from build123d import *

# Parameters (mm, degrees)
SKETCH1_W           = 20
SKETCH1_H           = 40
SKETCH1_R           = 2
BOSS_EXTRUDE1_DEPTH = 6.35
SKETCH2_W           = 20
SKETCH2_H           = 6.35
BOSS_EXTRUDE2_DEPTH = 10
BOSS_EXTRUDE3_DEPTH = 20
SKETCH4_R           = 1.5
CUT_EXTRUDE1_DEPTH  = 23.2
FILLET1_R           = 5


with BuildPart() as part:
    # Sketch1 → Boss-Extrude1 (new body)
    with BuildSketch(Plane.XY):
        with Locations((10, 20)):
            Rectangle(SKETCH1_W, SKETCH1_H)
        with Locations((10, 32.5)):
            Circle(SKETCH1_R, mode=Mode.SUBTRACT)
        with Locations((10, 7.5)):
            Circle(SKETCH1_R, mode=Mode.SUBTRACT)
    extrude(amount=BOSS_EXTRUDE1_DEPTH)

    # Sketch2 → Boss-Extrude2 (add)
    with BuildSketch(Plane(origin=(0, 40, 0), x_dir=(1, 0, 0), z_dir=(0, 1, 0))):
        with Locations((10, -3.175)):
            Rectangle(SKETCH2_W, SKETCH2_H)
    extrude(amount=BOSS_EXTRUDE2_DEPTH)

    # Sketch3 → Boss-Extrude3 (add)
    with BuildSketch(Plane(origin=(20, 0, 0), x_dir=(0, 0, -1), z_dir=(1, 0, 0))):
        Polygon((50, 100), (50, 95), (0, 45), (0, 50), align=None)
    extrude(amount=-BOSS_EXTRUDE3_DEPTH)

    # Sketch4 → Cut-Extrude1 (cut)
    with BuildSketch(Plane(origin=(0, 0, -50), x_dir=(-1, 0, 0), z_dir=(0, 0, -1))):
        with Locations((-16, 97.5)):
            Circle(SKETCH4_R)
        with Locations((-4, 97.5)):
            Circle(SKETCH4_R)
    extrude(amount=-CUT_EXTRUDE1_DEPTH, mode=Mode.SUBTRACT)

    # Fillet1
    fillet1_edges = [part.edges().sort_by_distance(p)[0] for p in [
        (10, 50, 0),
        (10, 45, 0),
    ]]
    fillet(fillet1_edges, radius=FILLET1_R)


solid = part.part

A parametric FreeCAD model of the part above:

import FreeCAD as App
import Part
import Sketcher
Q = App.Units.Quantity


def edges_at(feature, points):
    """Names of the edges that pass closest to the given points."""
    edges = feature.Shape.Edges
    near = lambda p: min(range(len(edges)), key=lambda i: edges[i].distToShape(Part.Vertex(*p))[0])
    return sorted({f"Edge{near(p) + 1}" for p in points})

doc = App.newDocument("Part")
body = doc.addObject("PartDesign::Body", "Body")

# Sketch on XY plane
sketch1 = doc.addObject("Sketcher::SketchObject", "Sketch")
body.addObject(sketch1)
sketch1.AttachmentSupport = (doc.XY_Plane, [""])
sketch1.MapMode = "FlatFace"
sketch1.addGeometry([
    Part.LineSegment(App.Vector(0, 40, 0), App.Vector(0, 0, 0)),  # 0
    Part.LineSegment(App.Vector(0, 0, 0), App.Vector(20, 0, 0)),  # 1
    Part.LineSegment(App.Vector(20, 0, 0), App.Vector(20, 40, 0)),  # 2
    Part.LineSegment(App.Vector(20, 40, 0), App.Vector(0, 40, 0)),  # 3
    Part.Circle(App.Vector(10, 7.5, 0), App.Vector(0, 0, 1), 2),  # 4
    Part.Circle(App.Vector(10, 32.5, 0), App.Vector(0, 0, 1), 2),  # 5
], False)
sketch1.addConstraint([
    Sketcher.Constraint("Coincident", 0, 2, 1, 1),
    Sketcher.Constraint("Coincident", 1, 2, 2, 1),
    Sketcher.Constraint("Coincident", 2, 2, 3, 1),
    Sketcher.Constraint("Coincident", 3, 2, 0, 1),
    Sketcher.Constraint("Vertical", 0),
    Sketcher.Constraint("Horizontal", 1),
    Sketcher.Constraint("Vertical", 2),
    Sketcher.Constraint("Horizontal", 3),
    Sketcher.Constraint("Coincident", 0, 2, -1, 1),
    Sketcher.Constraint("Equal", 4, 5),
    Sketcher.Constraint("Vertical", 4, 3, 5, 3),
    Sketcher.Constraint("Diameter", 4, 4.0),
    Sketcher.Constraint("DistanceX", 1, 1, 1, 2, 20.0),
    Sketcher.Constraint("DistanceY", 0, 2, 0, 1, 40.0),
    Sketcher.Constraint("DistanceX", -1, 1, 4, 3, 10.0),
    Sketcher.Constraint("DistanceY", 4, 3, 5, 3, 25.0),
    Sketcher.Constraint("DistanceY", -1, 1, 4, 3, 7.5),
])
pad1 = doc.addObject("PartDesign::Pad", "Pad")
body.addObject(pad1)
pad1.Profile = sketch1
pad1.Length = 6.35

# Sketch on XZ plane
sketch2 = doc.addObject("Sketcher::SketchObject", "Sketch001")
body.addObject(sketch2)
sketch2.AttachmentSupport = (doc.XZ_Plane, [""])
sketch2.MapMode = "FlatFace"
sketch2.AttachmentOffset = App.Placement(App.Vector(0, 0, -40), App.Rotation())
sketch2.addGeometry([
    Part.LineSegment(App.Vector(0, 0, 0), App.Vector(0, 6, 0)),
    Part.LineSegment(App.Vector(0, 6, 0), App.Vector(20, 6, 0)),
    Part.LineSegment(App.Vector(20, 6, 0), App.Vector(20, 0, 0)),
    Part.LineSegment(App.Vector(20, 0, 0), App.Vector(0, 0, 0)),
], False)
sketch2.addConstraint([
    Sketcher.Constraint("Coincident", 0, 2, 1, 1),
    Sketcher.Constraint("Coincident", 1, 2, 2, 1),
    Sketcher.Constraint("Coincident", 2, 2, 3, 1),
    Sketcher.Constraint("Coincident", 3, 2, 0, 1),
    Sketcher.Constraint("Vertical", 0),
    Sketcher.Constraint("Horizontal", 1),
    Sketcher.Constraint("Vertical", 2),
    Sketcher.Constraint("Horizontal", 3),
    Sketcher.Constraint("Coincident", 3, 2, -1, 1),
    Sketcher.Constraint("DistanceX", 1, 1, 1, 2, 20.0),
    Sketcher.Constraint("DistanceY", 0, 1, 0, 2, 6.35),
])
pad2 = doc.addObject("PartDesign::Pad", "Pad001")
body.addObject(pad2)
pad2.Profile = sketch2
pad2.Length = 10
pad2.Reversed = True

# Sketch on YZ plane
sketch3 = doc.addObject("Sketcher::SketchObject", "Sketch002")
body.addObject(sketch3)
sketch3.AttachmentSupport = (doc.YZ_Plane, [""])
sketch3.MapMode = "FlatFace"
sketch3.AttachmentOffset = App.Placement(App.Vector(0, 0, 20), App.Rotation())
sketch3.addGeometry([
    Part.LineSegment(App.Vector(95, -50, 0), App.Vector(100, -50, 0)),
    Part.LineSegment(App.Vector(100, -50, 0), App.Vector(50, 0, 0)),
    Part.LineSegment(App.Vector(50, 0, 0), App.Vector(45, 0, 0)),
    Part.LineSegment(App.Vector(45, 0, 0), App.Vector(95, -50, 0)),
], False)
sketch3.addConstraint([
    Sketcher.Constraint("Coincident", 0, 2, 1, 1),
    Sketcher.Constraint("Coincident", 1, 2, 2, 1),
    Sketcher.Constraint("Coincident", 2, 2, 3, 1),
    Sketcher.Constraint("Coincident", 3, 2, 0, 1),
    Sketcher.Constraint("Horizontal", 0),
    Sketcher.Constraint("Horizontal", 2),
    Sketcher.Constraint("PointOnObject", 1, 2, -1),
    Sketcher.Constraint("Parallel", 1, 3),
    Sketcher.Constraint("DistanceX", 0, 1, 0, 2, 5.0),
    Sketcher.Constraint("Angle", 1, Q("135 deg")),
    Sketcher.Constraint("DistanceX", -1, 1, 0, 2, 100.0),
    Sketcher.Constraint("DistanceY", 0, 2, -1, 1, 50.0),
])
pad3 = doc.addObject("PartDesign::Pad", "Pad002")
body.addObject(pad3)
pad3.Profile = sketch3
pad3.Length = 20
pad3.Reversed = True

# Sketch on XY plane
sketch4 = doc.addObject("Sketcher::SketchObject", "Sketch003")
body.addObject(sketch4)
sketch4.AttachmentSupport = (doc.XY_Plane, [""])
sketch4.MapMode = "FlatFace"
sketch4.AttachmentOffset = App.Placement(App.Vector(0, 0, -50), App.Rotation())
sketch4.addGeometry([
    Part.Circle(App.Vector(16, 97.5, 0), App.Vector(0, 0, 1), 1.5),
    Part.Circle(App.Vector(4, 97.5, 0), App.Vector(0, 0, 1), 1.5),
], False)
sketch4.addConstraint([
    Sketcher.Constraint("Equal", 0, 1),
    Sketcher.Constraint("Horizontal", 0, 3, 1, 3),
    Sketcher.Constraint("Diameter", 0, 3.0),
    Sketcher.Constraint("DistanceX", -1, 1, 0, 3, 16.0),
    Sketcher.Constraint("DistanceX", -1, 1, 1, 3, 4.0),
    Sketcher.Constraint("DistanceY", -1, 1, 0, 3, 97.5),
])
pocket1 = doc.addObject("PartDesign::Pocket", "Pocket")
body.addObject(pocket1)
pocket1.Profile = sketch4
pocket1.Length = 23.2
pocket1.Reversed = True
doc.recompute()

fillet = doc.addObject("PartDesign::Fillet", "Fillet")
body.addObject(fillet)
fillet.Base = (pocket1, edges_at(pocket1, [(10, 50, 0), (10, 45, 0)]))
fillet.Radius = 5

doc.recompute()
